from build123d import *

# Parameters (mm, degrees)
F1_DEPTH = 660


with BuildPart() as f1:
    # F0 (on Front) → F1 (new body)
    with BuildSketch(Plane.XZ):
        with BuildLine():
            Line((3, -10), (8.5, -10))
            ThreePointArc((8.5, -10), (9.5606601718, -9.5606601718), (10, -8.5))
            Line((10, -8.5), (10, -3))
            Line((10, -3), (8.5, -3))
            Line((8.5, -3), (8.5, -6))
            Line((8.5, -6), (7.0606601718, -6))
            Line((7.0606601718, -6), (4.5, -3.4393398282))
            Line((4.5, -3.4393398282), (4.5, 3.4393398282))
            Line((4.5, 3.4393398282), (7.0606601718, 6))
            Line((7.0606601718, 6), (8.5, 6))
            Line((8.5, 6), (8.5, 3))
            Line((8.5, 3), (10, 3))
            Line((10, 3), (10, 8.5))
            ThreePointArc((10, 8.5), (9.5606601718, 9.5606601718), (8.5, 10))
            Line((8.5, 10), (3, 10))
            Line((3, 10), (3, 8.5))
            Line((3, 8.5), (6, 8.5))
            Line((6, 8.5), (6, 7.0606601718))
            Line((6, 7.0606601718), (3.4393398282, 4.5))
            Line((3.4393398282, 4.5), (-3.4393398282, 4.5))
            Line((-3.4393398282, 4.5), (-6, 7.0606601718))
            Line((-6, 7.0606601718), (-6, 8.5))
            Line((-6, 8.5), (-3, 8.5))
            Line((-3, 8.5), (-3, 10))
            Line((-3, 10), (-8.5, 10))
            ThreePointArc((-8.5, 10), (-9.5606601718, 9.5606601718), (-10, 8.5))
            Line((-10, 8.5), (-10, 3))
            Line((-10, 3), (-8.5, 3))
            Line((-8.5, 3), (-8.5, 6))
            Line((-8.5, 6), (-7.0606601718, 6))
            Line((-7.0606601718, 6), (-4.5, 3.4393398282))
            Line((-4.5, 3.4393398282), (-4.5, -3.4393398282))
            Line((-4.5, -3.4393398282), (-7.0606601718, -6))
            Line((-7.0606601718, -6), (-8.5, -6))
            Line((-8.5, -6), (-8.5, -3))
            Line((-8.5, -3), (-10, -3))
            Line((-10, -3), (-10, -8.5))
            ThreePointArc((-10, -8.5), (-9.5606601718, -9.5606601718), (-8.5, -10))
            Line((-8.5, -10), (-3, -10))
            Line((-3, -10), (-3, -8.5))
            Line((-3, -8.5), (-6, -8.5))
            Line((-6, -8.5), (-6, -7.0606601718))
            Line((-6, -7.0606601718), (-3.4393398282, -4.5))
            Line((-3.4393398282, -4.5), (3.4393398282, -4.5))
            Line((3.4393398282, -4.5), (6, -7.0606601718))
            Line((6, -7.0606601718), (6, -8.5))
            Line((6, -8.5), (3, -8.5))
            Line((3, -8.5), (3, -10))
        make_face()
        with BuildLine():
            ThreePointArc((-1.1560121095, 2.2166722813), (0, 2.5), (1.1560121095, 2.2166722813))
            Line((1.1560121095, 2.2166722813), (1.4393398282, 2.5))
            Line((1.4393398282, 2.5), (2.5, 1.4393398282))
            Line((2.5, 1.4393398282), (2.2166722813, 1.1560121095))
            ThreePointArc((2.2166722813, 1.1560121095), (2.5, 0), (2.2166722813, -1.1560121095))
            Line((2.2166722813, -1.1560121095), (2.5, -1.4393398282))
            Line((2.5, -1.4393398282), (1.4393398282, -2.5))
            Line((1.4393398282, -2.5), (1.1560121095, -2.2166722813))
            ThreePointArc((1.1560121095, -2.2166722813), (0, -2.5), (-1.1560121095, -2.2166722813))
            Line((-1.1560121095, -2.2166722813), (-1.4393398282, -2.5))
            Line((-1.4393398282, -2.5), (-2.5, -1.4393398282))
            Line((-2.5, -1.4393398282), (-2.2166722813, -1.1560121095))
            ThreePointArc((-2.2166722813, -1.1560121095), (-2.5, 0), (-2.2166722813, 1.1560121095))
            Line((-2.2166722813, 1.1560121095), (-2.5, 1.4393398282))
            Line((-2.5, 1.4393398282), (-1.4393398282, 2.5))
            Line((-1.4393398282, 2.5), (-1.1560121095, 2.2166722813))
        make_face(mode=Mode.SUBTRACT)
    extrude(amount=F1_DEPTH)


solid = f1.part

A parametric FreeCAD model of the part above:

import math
import FreeCAD as App
import Part
import Sketcher
from FreeCAD import Vector
Q = App.Units.Quantity

doc = App.newDocument("Part")
params = doc.addObject("Spreadsheet::Sheet", "Params")
for row, (alias, value) in enumerate([
    ("sketch1_radius", "1.5 mm"),
    ("sketch1_radius2", "2.5 mm"),
    ("sketch1_width", "3 mm"),
    ("sketch1_width2", "5.5 mm"),
    ("sketch1_length", "1.5 mm"),
    ("pad1_length", "660 mm"),
], start=1):
    params.set(f"A{row}", alias)
    params.set(f"B{row}", "=" + value)
    params.setAlias(f"B{row}", alias)

body = doc.addObject("PartDesign::Body", "Body")

# Sketch on XZ plane
sketch1 = body.newObject("Sketcher::SketchObject", "Sketch")
sketch1.AttachmentSupport = (doc.getObject("XZ_Plane"), [""])
sketch1.MapMode = "FlatFace"
sketch1.addGeometry([
    Part.LineSegment(Vector(3, -10, 0), Vector(8.5, -10, 0)),  # 0
    Part.ArcOfCircle(Part.Circle(Vector(8.5, -8.5, 0), Vector(0, 0, 1), 1.5), math.radians(-90), math.radians(0)),  # 1
    Part.LineSegment(Vector(10, -8.5, 0), Vector(10, -3, 0)),  # 2
    Part.LineSegment(Vector(10, -3, 0), Vector(8.5, -3, 0)),  # 3
    Part.LineSegment(Vector(8.5, -3, 0), Vector(8.5, -6, 0)),  # 4
    Part.LineSegment(Vector(8.5, -6, 0), Vector(7.06066, -6, 0)),  # 5
    Part.LineSegment(Vector(7.06066, -6, 0), Vector(4.5, -3.43934, 0)),  # 6
    Part.LineSegment(Vector(4.5, -3.43934, 0), Vector(4.5, 3.43934, 0)),  # 7
    Part.LineSegment(Vector(4.5, 3.43934, 0), Vector(7.06066, 6, 0)),  # 8
    Part.LineSegment(Vector(7.06066, 6, 0), Vector(8.5, 6, 0)),  # 9
    Part.LineSegment(Vector(8.5, 6, 0), Vector(8.5, 3, 0)),  # 10
    Part.LineSegment(Vector(8.5, 3, 0), Vector(10, 3, 0)),  # 11
    Part.LineSegment(Vector(10, 3, 0), Vector(10, 8.5, 0)),  # 12
    Part.ArcOfCircle(Part.Circle(Vector(8.5, 8.5, 0), Vector(0, 0, 1), 1.5), math.radians(0), math.radians(90)),  # 13
    Part.LineSegment(Vector(8.5, 10, 0), Vector(3, 10, 0)),  # 14
    Part.LineSegment(Vector(3, 10, 0), Vector(3, 8.5, 0)),  # 15
    Part.LineSegment(Vector(3, 8.5, 0), Vector(6, 8.5, 0)),  # 16
    Part.LineSegment(Vector(6, 8.5, 0), Vector(6, 7.06066, 0)),  # 17
    Part.LineSegment(Vector(6, 7.06066, 0), Vector(3.43934, 4.5, 0)),  # 18
    Part.LineSegment(Vector(3.43934, 4.5, 0), Vector(-3.43934, 4.5, 0)),  # 19
    Part.LineSegment(Vector(-3.43934, 4.5, 0), Vector(-6, 7.06066, 0)),  # 20
    Part.LineSegment(Vector(-6, 7.06066, 0), Vector(-6, 8.5, 0)),  # 21
    Part.LineSegment(Vector(-6, 8.5, 0), Vector(-3, 8.5, 0)),  # 22
    Part.LineSegment(Vector(-3, 8.5, 0), Vector(-3, 10, 0)),  # 23
    Part.LineSegment(Vector(-3, 10, 0), Vector(-8.5, 10, 0)),  # 24
    Part.ArcOfCircle(Part.Circle(Vector(-8.5, 8.5, 0), Vector(0, 0, 1), 1.5), math.radians(90), math.radians(180)),  # 25
    Part.LineSegment(Vector(-10, 8.5, 0), Vector(-10, 3, 0)),  # 26
    Part.LineSegment(Vector(-10, 3, 0), Vector(-8.5, 3, 0)),  # 27
    Part.LineSegment(Vector(-8.5, 3, 0), Vector(-8.5, 6, 0)),  # 28
    Part.LineSegment(Vector(-8.5, 6, 0), Vector(-7.06066, 6, 0)),  # 29
    Part.LineSegment(Vector(-7.06066, 6, 0), Vector(-4.5, 3.43934, 0)),  # 30
    Part.LineSegment(Vector(-4.5, 3.43934, 0), Vector(-4.5, -3.43934, 0)),  # 31
    Part.LineSegment(Vector(-4.5, -3.43934, 0), Vector(-7.06066, -6, 0)),  # 32
    Part.LineSegment(Vector(-7.06066, -6, 0), Vector(-8.5, -6, 0)),  # 33
    Part.LineSegment(Vector(-8.5, -6, 0), Vector(-8.5, -3, 0)),  # 34
    Part.LineSegment(Vector(-8.5, -3, 0), Vector(-10, -3, 0)),  # 35
    Part.LineSegment(Vector(-10, -3, 0), Vector(-10, -8.5, 0)),  # 36
    Part.ArcOfCircle(Part.Circle(Vector(-8.5, -8.5, 0), Vector(0, 0, 1), 1.5), math.radians(180), math.radians(270)),  # 37
    Part.LineSegment(Vector(-8.5, -10, 0), Vector(-3, -10, 0)),  # 38
    Part.LineSegment(Vector(-3, -10, 0), Vector(-3, -8.5, 0)),  # 39
    Part.LineSegment(Vector(-3, -8.5, 0), Vector(-6, -8.5, 0)),  # 40
    Part.LineSegment(Vector(-6, -8.5, 0), Vector(-6, -7.06066, 0)),  # 41
    Part.LineSegment(Vector(-6, -7.06066, 0), Vector(-3.43934, -4.5, 0)),  # 42
    Part.LineSegment(Vector(-3.43934, -4.5, 0), Vector(3.43934, -4.5, 0)),  # 43
    Part.LineSegment(Vector(3.43934, -4.5, 0), Vector(6, -7.06066, 0)),  # 44
    Part.LineSegment(Vector(6, -7.06066, 0), Vector(6, -8.5, 0)),  # 45
    Part.LineSegment(Vector(6, -8.5, 0), Vector(3, -8.5, 0)),  # 46
    Part.LineSegment(Vector(3, -8.5, 0), Vector(3, -10, 0)),  # 47
    Part.LineSegment(Vector(-1.43934, 2.5, 0), Vector(-1.156012, 2.216672, 0)),  # 48
    Part.ArcOfCircle(Part.Circle(Vector(0, 0, 0), Vector(0, 0, 1), 2.5), math.radians(62.457603), math.radians(117.542397)),  # 49
    Part.LineSegment(Vector(1.156012, 2.216672, 0), Vector(1.43934, 2.5, 0)),  # 50
    Part.LineSegment(Vector(1.43934, 2.5, 0), Vector(2.5, 1.43934, 0)),  # 51
    Part.LineSegment(Vector(2.5, 1.43934, 0), Vector(2.216672, 1.156012, 0)),  # 52
    Part.ArcOfCircle(Part.Circle(Vector(0, 0, 0), Vector(0, 0, 1), 2.5), math.radians(-27.542397), math.radians(27.542397)),  # 53
    Part.LineSegment(Vector(2.216672, -1.156012, 0), Vector(2.5, -1.43934, 0)),  # 54
    Part.LineSegment(Vector(2.5, -1.43934, 0), Vector(1.43934, -2.5, 0)),  # 55
    Part.LineSegment(Vector(1.43934, -2.5, 0), Vector(1.156012, -2.216672, 0)),  # 56
    Part.ArcOfCircle(Part.Circle(Vector(0, 0, 0), Vector(0, 0, 1), 2.5), math.radians(-117.542397), math.radians(-62.457603)),  # 57
    Part.LineSegment(Vector(-1.156012, -2.216672, 0), Vector(-1.43934, -2.5, 0)),  # 58
    Part.LineSegment(Vector(-1.43934, -2.5, 0), Vector(-2.5, -1.43934, 0)),  # 59
    Part.LineSegment(Vector(-2.5, -1.43934, 0), Vector(-2.216672, -1.156012, 0)),  # 60
    Part.ArcOfCircle(Part.Circle(Vector(0, 0, 0), Vector(0, 0, 1), 2.5), math.radians(152.457603), math.radians(207.542397)),  # 61
    Part.LineSegment(Vector(-2.216672, 1.156012, 0), Vector(-2.5, 1.43934, 0)),  # 62
    Part.LineSegment(Vector(-2.5, 1.43934, 0), Vector(-1.43934, 2.5, 0)),  # 63
], False)
sketch1.addConstraint([
    Sketcher.Constraint("Tangent", 0, 2, 1, 1),
    Sketcher.Constraint("Tangent", 1, 2, 2, 1),
    Sketcher.Constraint("Coincident", 2, 2, 3, 1),
    Sketcher.Constraint("Coincident", 3, 2, 4, 1),
    Sketcher.Constraint("Coincident", 4, 2, 5, 1),
    Sketcher.Constraint("Coincident", 5, 2, 6, 1),
    Sketcher.Constraint("Coincident", 6, 2, 7, 1),
    Sketcher.Constraint("Coincident", 7, 2, 8, 1),
    Sketcher.Constraint("Coincident", 8, 2, 9, 1),
    Sketcher.Constraint("Coincident", 9, 2, 10, 1),
    Sketcher.Constraint("Coincident", 10, 2, 11, 1),
    Sketcher.Constraint("Coincident", 11, 2, 12, 1),
    Sketcher.Constraint("Tangent", 12, 2, 13, 1),
    Sketcher.Constraint("Tangent", 13, 2, 14, 1),
    Sketcher.Constraint("Coincident", 14, 2, 15, 1),
    Sketcher.Constraint("Coincident", 15, 2, 16, 1),
    Sketcher.Constraint("Coincident", 16, 2, 17, 1),
    Sketcher.Constraint("Coincident", 17, 2, 18, 1),
    Sketcher.Constraint("Coincident", 18, 2, 19, 1),
    Sketcher.Constraint("Coincident", 19, 2, 20, 1),
    Sketcher.Constraint("Coincident", 20, 2, 21, 1),
    Sketcher.Constraint("Coincident", 21, 2, 22, 1),
    Sketcher.Constraint("Coincident", 22, 2, 23, 1),
    Sketcher.Constraint("Coincident", 23, 2, 24, 1),
    Sketcher.Constraint("Tangent", 24, 2, 25, 1),
    Sketcher.Constraint("Tangent", 25, 2, 26, 1),
    Sketcher.Constraint("Coincident", 26, 2, 27, 1),
    Sketcher.Constraint("Coincident", 27, 2, 28, 1),
    Sketcher.Constraint("Coincident", 28, 2, 29, 1),
    Sketcher.Constraint("Coincident", 29, 2, 30, 1),
    Sketcher.Constraint("Coincident", 30, 2, 31, 1),
    Sketcher.Constraint("Coincident", 31, 2, 32, 1),
    Sketcher.Constraint("Coincident", 32, 2, 33, 1),
    Sketcher.Constraint("Coincident", 33, 2, 34, 1),
    Sketcher.Constraint("Coincident", 34, 2, 35, 1),
    Sketcher.Constraint("Coincident", 35, 2, 36, 1),
    Sketcher.Constraint("Tangent", 36, 2, 37, 1),
    Sketcher.Constraint("Tangent", 37, 2, 38, 1),
    Sketcher.Constraint("Coincident", 38, 2, 39, 1),
    Sketcher.Constraint("Coincident", 39, 2, 40, 1),
    Sketcher.Constraint("Coincident", 40, 2, 41, 1),
    Sketcher.Constraint("Coincident", 41, 2, 42, 1),
    Sketcher.Constraint("Coincident", 42, 2, 43, 1),
    Sketcher.Constraint("Coincident", 43, 2, 44, 1),
    Sketcher.Constraint("Coincident", 44, 2, 45, 1),
    Sketcher.Constraint("Coincident", 45, 2, 46, 1),
    Sketcher.Constraint("Coincident", 46, 2, 47, 1),
    Sketcher.Constraint("Coincident", 47, 2, 0, 1),
    Sketcher.Constraint("Coincident", 48, 2, 49, 2),
    Sketcher.Constraint("Coincident", 49, 1, 50, 1),
    Sketcher.Constraint("Coincident", 50, 2, 51, 1),
    Sketcher.Constraint("Coincident", 51, 2, 52, 1),
    Sketcher.Constraint("Coincident", 52, 2, 53, 2),
    Sketcher.Constraint("Coincident", 53, 1, 54, 1),
    Sketcher.Constraint("Coincident", 54, 2, 55, 1),
    Sketcher.Constraint("Coincident", 55, 2, 56, 1),
    Sketcher.Constraint("Coincident", 56, 2, 57, 2),
    Sketcher.Constraint("Coincident", 57, 1, 58, 1),
    Sketcher.Constraint("Coincident", 58, 2, 59, 1),
    Sketcher.Constraint("Coincident", 59, 2, 60, 1),
    Sketcher.Constraint("Coincident", 60, 2, 61, 2),
    Sketcher.Constraint("Coincident", 61, 1, 62, 1),
    Sketcher.Constraint("Coincident", 62, 2, 63, 1),
    Sketcher.Constraint("Coincident", 63, 2, 48, 1),
    Sketcher.Constraint("Horizontal", 0),
    Sketcher.Constraint("Vertical", 2),
    Sketcher.Constraint("Horizontal", 3),
    Sketcher.Constraint("Vertical", 4),
    Sketcher.Constraint("Horizontal", 5),
    Sketcher.Constraint("Vertical", 7),
    Sketcher.Constraint("Horizontal", 9),
    Sketcher.Constraint("Vertical", 10),
    Sketcher.Constraint("Horizontal", 11),
    Sketcher.Constraint("Vertical", 12),
    Sketcher.Constraint("Horizontal", 14),
    Sketcher.Constraint("Vertical", 15),
    Sketcher.Constraint("Horizontal", 16),
    Sketcher.Constraint("Vertical", 17),
    Sketcher.Constraint("Horizontal", 19),
    Sketcher.Constraint("Vertical", 21),
    Sketcher.Constraint("Horizontal", 22),
    Sketcher.Constraint("Vertical", 23),
    Sketcher.Constraint("Horizontal", 24),
    Sketcher.Constraint("Vertical", 26),
    Sketcher.Constraint("Horizontal", 27),
    Sketcher.Constraint("Vertical", 28),
    Sketcher.Constraint("Horizontal", 29),
    Sketcher.Constraint("Vertical", 31),
    Sketcher.Constraint("Horizontal", 33),
    Sketcher.Constraint("Vertical", 34),
    Sketcher.Constraint("Horizontal", 35),
    Sketcher.Constraint("Vertical", 36),
    Sketcher.Constraint("Horizontal", 38),
    Sketcher.Constraint("Vertical", 39),
    Sketcher.Constraint("Horizontal", 40),
    Sketcher.Constraint("Vertical", 41),
    Sketcher.Constraint("Horizontal", 43),
    Sketcher.Constraint("Vertical", 45),
    Sketcher.Constraint("Horizontal", 46),
    Sketcher.Constraint("Vertical", 47),
    Sketcher.Constraint("Coincident", 49, 3, -1, 1),
    Sketcher.Constraint("Coincident", 53, 3, -1, 1),
    Sketcher.Constraint("Coincident", 57, 3, -1, 1),
    Sketcher.Constraint("Coincident", 61, 3, -1, 1),
    Sketcher.Constraint("Equal", 1, 13),
    Sketcher.Constraint("Equal", 13, 25),
    Sketcher.Constraint("Equal", 25, 37),
    Sketcher.Constraint("Equal", 49, 53),
    Sketcher.Constraint("Equal", 53, 57),
    Sketcher.Constraint("Equal", 57, 61),
    Sketcher.Constraint("Symmetric", 1, 3, 25, 3, -1, 1),
    Sketcher.Constraint("Symmetric", 13, 3, 37, 3, -1, 1),
    Sketcher.Constraint("Symmetric", 3, 2, 27, 2, -1, 1),
    Sketcher.Constraint("Symmetric", 5, 2, 29, 2, -1, 1),
    Sketcher.Constraint("Symmetric", 6, 2, 30, 2, -1, 1),
    Sketcher.Constraint("Symmetric", 8, 2, 32, 2, -1, 1),
    Sketcher.Constraint("Symmetric", 10, 2, 34, 2, -1, 1),
    Sketcher.Constraint("Symmetric", 15, 2, 39, 2, -1, 1),
    Sketcher.Constraint("Symmetric", 17, 2, 41, 2, -1, 1),
    Sketcher.Constraint("Symmetric", 18, 2, 42, 2, -1, 1),
    Sketcher.Constraint("Symmetric", 20, 2, 44, 2, -1, 1),
    Sketcher.Constraint("Symmetric", 22, 2, 46, 2, -1, 1),
    Sketcher.Constraint("Symmetric", 50, 2, 58, 2, -1, 1),
    Sketcher.Constraint("Symmetric", 51, 2, 59, 2, -1, 1),
    Sketcher.Constraint("Symmetric", 54, 2, 62, 2, -1, 1),
    Sketcher.Constraint("Symmetric", 55, 2, 63, 2, -1, 1),
    Sketcher.Constraint("Symmetric", 13, 3, 25, 3, -2),
    Sketcher.Constraint("Symmetric", 17, 2, 20, 2, -2),
    Sketcher.Constraint("Symmetric", 15, 2, 22, 2, -2),
    Sketcher.Constraint("Symmetric", 10, 2, 27, 2, -2),
    Sketcher.Constraint("Symmetric", 8, 2, 29, 2, -2),
    Sketcher.Constraint("Symmetric", 55, 2, 58, 2, -2),
    Sketcher.Constraint("Symmetric", 54, 2, 59, 2, -2),
    Sketcher.Constraint("Perpendicular", 6, 8),
    Sketcher.Constraint("Parallel", 8, 18),
    Sketcher.Constraint("Perpendicular", 18, 20),
    Sketcher.Constraint("Perpendicular", 30, 32),
    Sketcher.Constraint("Perpendicular", 42, 44),
    Sketcher.Constraint("Parallel", 44, 48),
    Sketcher.Constraint("Perpendicular", 48, 50),
    Sketcher.Constraint("Perpendicular", 50, 51),
    Sketcher.Constraint("Perpendicular", 51, 52),
    Sketcher.Constraint("Perpendicular", 52, 54),
    Sketcher.Constraint("Perpendicular", 54, 55),
    Sketcher.Constraint("Perpendicular", 55, 56),
    Sketcher.Constraint("Perpendicular", 56, 58),
    Sketcher.Constraint("Perpendicular", 59, 60),
    Sketcher.Constraint("Perpendicular", 60, 62),
    Sketcher.Constraint("Horizontal", 12, 2, 15, 2),
    Sketcher.Constraint("Vertical", 0, 2, 3, 2),
    Sketcher.Constraint("Equal", 38, 2),
    Sketcher.Constraint("Equal", 46, 4),
    Sketcher.Constraint("Equal", 43, 7),
    Sketcher.Constraint("Equal", 33, 17),
    Sketcher.Constraint("Equal", 8, 18),
    Sketcher.Constraint("Equal", 50, 52),
    Sketcher.Constraint("Radius", 1, Q("1.5 mm")),
    Sketcher.Constraint("Radius", 49, Q("2.5 mm")),
    Sketcher.Constraint("DistanceX", 16, 1, 16, 2, Q("3 mm")),
    Sketcher.Constraint("DistanceX", 0, 1, 0, 2, Q("5.5 mm")),
    Sketcher.Constraint("DistanceY", 0, 2, -1, 1, Q("10 mm")),
    Sketcher.Constraint("Distance", 51, Q("1.5 mm")),
    Sketcher.Constraint("DistanceX", -1, 1, 6, 2, Q("4.5 mm")),
    Sketcher.Constraint("DistanceY", -1, 1, 50, 2, Q("2.5 mm")),
    Sketcher.Constraint("DistanceX", 5, 2, 5, 1, Q("1.43934 mm")),
])
sketch1.setExpression("Constraints[156]", "Params.sketch1_radius")
sketch1.setExpression("Constraints[157]", "Params.sketch1_radius2")
sketch1.setExpression("Constraints[158]", "Params.sketch1_width")
sketch1.setExpression("Constraints[159]", "Params.sketch1_width2")
sketch1.setExpression("Constraints[161]", "Params.sketch1_length")
pad1 = body.newObject("PartDesign::Pad", "Pad")
pad1.Profile = sketch1
pad1.setExpression("Length", "Params.pad1_length")

doc.recompute()
